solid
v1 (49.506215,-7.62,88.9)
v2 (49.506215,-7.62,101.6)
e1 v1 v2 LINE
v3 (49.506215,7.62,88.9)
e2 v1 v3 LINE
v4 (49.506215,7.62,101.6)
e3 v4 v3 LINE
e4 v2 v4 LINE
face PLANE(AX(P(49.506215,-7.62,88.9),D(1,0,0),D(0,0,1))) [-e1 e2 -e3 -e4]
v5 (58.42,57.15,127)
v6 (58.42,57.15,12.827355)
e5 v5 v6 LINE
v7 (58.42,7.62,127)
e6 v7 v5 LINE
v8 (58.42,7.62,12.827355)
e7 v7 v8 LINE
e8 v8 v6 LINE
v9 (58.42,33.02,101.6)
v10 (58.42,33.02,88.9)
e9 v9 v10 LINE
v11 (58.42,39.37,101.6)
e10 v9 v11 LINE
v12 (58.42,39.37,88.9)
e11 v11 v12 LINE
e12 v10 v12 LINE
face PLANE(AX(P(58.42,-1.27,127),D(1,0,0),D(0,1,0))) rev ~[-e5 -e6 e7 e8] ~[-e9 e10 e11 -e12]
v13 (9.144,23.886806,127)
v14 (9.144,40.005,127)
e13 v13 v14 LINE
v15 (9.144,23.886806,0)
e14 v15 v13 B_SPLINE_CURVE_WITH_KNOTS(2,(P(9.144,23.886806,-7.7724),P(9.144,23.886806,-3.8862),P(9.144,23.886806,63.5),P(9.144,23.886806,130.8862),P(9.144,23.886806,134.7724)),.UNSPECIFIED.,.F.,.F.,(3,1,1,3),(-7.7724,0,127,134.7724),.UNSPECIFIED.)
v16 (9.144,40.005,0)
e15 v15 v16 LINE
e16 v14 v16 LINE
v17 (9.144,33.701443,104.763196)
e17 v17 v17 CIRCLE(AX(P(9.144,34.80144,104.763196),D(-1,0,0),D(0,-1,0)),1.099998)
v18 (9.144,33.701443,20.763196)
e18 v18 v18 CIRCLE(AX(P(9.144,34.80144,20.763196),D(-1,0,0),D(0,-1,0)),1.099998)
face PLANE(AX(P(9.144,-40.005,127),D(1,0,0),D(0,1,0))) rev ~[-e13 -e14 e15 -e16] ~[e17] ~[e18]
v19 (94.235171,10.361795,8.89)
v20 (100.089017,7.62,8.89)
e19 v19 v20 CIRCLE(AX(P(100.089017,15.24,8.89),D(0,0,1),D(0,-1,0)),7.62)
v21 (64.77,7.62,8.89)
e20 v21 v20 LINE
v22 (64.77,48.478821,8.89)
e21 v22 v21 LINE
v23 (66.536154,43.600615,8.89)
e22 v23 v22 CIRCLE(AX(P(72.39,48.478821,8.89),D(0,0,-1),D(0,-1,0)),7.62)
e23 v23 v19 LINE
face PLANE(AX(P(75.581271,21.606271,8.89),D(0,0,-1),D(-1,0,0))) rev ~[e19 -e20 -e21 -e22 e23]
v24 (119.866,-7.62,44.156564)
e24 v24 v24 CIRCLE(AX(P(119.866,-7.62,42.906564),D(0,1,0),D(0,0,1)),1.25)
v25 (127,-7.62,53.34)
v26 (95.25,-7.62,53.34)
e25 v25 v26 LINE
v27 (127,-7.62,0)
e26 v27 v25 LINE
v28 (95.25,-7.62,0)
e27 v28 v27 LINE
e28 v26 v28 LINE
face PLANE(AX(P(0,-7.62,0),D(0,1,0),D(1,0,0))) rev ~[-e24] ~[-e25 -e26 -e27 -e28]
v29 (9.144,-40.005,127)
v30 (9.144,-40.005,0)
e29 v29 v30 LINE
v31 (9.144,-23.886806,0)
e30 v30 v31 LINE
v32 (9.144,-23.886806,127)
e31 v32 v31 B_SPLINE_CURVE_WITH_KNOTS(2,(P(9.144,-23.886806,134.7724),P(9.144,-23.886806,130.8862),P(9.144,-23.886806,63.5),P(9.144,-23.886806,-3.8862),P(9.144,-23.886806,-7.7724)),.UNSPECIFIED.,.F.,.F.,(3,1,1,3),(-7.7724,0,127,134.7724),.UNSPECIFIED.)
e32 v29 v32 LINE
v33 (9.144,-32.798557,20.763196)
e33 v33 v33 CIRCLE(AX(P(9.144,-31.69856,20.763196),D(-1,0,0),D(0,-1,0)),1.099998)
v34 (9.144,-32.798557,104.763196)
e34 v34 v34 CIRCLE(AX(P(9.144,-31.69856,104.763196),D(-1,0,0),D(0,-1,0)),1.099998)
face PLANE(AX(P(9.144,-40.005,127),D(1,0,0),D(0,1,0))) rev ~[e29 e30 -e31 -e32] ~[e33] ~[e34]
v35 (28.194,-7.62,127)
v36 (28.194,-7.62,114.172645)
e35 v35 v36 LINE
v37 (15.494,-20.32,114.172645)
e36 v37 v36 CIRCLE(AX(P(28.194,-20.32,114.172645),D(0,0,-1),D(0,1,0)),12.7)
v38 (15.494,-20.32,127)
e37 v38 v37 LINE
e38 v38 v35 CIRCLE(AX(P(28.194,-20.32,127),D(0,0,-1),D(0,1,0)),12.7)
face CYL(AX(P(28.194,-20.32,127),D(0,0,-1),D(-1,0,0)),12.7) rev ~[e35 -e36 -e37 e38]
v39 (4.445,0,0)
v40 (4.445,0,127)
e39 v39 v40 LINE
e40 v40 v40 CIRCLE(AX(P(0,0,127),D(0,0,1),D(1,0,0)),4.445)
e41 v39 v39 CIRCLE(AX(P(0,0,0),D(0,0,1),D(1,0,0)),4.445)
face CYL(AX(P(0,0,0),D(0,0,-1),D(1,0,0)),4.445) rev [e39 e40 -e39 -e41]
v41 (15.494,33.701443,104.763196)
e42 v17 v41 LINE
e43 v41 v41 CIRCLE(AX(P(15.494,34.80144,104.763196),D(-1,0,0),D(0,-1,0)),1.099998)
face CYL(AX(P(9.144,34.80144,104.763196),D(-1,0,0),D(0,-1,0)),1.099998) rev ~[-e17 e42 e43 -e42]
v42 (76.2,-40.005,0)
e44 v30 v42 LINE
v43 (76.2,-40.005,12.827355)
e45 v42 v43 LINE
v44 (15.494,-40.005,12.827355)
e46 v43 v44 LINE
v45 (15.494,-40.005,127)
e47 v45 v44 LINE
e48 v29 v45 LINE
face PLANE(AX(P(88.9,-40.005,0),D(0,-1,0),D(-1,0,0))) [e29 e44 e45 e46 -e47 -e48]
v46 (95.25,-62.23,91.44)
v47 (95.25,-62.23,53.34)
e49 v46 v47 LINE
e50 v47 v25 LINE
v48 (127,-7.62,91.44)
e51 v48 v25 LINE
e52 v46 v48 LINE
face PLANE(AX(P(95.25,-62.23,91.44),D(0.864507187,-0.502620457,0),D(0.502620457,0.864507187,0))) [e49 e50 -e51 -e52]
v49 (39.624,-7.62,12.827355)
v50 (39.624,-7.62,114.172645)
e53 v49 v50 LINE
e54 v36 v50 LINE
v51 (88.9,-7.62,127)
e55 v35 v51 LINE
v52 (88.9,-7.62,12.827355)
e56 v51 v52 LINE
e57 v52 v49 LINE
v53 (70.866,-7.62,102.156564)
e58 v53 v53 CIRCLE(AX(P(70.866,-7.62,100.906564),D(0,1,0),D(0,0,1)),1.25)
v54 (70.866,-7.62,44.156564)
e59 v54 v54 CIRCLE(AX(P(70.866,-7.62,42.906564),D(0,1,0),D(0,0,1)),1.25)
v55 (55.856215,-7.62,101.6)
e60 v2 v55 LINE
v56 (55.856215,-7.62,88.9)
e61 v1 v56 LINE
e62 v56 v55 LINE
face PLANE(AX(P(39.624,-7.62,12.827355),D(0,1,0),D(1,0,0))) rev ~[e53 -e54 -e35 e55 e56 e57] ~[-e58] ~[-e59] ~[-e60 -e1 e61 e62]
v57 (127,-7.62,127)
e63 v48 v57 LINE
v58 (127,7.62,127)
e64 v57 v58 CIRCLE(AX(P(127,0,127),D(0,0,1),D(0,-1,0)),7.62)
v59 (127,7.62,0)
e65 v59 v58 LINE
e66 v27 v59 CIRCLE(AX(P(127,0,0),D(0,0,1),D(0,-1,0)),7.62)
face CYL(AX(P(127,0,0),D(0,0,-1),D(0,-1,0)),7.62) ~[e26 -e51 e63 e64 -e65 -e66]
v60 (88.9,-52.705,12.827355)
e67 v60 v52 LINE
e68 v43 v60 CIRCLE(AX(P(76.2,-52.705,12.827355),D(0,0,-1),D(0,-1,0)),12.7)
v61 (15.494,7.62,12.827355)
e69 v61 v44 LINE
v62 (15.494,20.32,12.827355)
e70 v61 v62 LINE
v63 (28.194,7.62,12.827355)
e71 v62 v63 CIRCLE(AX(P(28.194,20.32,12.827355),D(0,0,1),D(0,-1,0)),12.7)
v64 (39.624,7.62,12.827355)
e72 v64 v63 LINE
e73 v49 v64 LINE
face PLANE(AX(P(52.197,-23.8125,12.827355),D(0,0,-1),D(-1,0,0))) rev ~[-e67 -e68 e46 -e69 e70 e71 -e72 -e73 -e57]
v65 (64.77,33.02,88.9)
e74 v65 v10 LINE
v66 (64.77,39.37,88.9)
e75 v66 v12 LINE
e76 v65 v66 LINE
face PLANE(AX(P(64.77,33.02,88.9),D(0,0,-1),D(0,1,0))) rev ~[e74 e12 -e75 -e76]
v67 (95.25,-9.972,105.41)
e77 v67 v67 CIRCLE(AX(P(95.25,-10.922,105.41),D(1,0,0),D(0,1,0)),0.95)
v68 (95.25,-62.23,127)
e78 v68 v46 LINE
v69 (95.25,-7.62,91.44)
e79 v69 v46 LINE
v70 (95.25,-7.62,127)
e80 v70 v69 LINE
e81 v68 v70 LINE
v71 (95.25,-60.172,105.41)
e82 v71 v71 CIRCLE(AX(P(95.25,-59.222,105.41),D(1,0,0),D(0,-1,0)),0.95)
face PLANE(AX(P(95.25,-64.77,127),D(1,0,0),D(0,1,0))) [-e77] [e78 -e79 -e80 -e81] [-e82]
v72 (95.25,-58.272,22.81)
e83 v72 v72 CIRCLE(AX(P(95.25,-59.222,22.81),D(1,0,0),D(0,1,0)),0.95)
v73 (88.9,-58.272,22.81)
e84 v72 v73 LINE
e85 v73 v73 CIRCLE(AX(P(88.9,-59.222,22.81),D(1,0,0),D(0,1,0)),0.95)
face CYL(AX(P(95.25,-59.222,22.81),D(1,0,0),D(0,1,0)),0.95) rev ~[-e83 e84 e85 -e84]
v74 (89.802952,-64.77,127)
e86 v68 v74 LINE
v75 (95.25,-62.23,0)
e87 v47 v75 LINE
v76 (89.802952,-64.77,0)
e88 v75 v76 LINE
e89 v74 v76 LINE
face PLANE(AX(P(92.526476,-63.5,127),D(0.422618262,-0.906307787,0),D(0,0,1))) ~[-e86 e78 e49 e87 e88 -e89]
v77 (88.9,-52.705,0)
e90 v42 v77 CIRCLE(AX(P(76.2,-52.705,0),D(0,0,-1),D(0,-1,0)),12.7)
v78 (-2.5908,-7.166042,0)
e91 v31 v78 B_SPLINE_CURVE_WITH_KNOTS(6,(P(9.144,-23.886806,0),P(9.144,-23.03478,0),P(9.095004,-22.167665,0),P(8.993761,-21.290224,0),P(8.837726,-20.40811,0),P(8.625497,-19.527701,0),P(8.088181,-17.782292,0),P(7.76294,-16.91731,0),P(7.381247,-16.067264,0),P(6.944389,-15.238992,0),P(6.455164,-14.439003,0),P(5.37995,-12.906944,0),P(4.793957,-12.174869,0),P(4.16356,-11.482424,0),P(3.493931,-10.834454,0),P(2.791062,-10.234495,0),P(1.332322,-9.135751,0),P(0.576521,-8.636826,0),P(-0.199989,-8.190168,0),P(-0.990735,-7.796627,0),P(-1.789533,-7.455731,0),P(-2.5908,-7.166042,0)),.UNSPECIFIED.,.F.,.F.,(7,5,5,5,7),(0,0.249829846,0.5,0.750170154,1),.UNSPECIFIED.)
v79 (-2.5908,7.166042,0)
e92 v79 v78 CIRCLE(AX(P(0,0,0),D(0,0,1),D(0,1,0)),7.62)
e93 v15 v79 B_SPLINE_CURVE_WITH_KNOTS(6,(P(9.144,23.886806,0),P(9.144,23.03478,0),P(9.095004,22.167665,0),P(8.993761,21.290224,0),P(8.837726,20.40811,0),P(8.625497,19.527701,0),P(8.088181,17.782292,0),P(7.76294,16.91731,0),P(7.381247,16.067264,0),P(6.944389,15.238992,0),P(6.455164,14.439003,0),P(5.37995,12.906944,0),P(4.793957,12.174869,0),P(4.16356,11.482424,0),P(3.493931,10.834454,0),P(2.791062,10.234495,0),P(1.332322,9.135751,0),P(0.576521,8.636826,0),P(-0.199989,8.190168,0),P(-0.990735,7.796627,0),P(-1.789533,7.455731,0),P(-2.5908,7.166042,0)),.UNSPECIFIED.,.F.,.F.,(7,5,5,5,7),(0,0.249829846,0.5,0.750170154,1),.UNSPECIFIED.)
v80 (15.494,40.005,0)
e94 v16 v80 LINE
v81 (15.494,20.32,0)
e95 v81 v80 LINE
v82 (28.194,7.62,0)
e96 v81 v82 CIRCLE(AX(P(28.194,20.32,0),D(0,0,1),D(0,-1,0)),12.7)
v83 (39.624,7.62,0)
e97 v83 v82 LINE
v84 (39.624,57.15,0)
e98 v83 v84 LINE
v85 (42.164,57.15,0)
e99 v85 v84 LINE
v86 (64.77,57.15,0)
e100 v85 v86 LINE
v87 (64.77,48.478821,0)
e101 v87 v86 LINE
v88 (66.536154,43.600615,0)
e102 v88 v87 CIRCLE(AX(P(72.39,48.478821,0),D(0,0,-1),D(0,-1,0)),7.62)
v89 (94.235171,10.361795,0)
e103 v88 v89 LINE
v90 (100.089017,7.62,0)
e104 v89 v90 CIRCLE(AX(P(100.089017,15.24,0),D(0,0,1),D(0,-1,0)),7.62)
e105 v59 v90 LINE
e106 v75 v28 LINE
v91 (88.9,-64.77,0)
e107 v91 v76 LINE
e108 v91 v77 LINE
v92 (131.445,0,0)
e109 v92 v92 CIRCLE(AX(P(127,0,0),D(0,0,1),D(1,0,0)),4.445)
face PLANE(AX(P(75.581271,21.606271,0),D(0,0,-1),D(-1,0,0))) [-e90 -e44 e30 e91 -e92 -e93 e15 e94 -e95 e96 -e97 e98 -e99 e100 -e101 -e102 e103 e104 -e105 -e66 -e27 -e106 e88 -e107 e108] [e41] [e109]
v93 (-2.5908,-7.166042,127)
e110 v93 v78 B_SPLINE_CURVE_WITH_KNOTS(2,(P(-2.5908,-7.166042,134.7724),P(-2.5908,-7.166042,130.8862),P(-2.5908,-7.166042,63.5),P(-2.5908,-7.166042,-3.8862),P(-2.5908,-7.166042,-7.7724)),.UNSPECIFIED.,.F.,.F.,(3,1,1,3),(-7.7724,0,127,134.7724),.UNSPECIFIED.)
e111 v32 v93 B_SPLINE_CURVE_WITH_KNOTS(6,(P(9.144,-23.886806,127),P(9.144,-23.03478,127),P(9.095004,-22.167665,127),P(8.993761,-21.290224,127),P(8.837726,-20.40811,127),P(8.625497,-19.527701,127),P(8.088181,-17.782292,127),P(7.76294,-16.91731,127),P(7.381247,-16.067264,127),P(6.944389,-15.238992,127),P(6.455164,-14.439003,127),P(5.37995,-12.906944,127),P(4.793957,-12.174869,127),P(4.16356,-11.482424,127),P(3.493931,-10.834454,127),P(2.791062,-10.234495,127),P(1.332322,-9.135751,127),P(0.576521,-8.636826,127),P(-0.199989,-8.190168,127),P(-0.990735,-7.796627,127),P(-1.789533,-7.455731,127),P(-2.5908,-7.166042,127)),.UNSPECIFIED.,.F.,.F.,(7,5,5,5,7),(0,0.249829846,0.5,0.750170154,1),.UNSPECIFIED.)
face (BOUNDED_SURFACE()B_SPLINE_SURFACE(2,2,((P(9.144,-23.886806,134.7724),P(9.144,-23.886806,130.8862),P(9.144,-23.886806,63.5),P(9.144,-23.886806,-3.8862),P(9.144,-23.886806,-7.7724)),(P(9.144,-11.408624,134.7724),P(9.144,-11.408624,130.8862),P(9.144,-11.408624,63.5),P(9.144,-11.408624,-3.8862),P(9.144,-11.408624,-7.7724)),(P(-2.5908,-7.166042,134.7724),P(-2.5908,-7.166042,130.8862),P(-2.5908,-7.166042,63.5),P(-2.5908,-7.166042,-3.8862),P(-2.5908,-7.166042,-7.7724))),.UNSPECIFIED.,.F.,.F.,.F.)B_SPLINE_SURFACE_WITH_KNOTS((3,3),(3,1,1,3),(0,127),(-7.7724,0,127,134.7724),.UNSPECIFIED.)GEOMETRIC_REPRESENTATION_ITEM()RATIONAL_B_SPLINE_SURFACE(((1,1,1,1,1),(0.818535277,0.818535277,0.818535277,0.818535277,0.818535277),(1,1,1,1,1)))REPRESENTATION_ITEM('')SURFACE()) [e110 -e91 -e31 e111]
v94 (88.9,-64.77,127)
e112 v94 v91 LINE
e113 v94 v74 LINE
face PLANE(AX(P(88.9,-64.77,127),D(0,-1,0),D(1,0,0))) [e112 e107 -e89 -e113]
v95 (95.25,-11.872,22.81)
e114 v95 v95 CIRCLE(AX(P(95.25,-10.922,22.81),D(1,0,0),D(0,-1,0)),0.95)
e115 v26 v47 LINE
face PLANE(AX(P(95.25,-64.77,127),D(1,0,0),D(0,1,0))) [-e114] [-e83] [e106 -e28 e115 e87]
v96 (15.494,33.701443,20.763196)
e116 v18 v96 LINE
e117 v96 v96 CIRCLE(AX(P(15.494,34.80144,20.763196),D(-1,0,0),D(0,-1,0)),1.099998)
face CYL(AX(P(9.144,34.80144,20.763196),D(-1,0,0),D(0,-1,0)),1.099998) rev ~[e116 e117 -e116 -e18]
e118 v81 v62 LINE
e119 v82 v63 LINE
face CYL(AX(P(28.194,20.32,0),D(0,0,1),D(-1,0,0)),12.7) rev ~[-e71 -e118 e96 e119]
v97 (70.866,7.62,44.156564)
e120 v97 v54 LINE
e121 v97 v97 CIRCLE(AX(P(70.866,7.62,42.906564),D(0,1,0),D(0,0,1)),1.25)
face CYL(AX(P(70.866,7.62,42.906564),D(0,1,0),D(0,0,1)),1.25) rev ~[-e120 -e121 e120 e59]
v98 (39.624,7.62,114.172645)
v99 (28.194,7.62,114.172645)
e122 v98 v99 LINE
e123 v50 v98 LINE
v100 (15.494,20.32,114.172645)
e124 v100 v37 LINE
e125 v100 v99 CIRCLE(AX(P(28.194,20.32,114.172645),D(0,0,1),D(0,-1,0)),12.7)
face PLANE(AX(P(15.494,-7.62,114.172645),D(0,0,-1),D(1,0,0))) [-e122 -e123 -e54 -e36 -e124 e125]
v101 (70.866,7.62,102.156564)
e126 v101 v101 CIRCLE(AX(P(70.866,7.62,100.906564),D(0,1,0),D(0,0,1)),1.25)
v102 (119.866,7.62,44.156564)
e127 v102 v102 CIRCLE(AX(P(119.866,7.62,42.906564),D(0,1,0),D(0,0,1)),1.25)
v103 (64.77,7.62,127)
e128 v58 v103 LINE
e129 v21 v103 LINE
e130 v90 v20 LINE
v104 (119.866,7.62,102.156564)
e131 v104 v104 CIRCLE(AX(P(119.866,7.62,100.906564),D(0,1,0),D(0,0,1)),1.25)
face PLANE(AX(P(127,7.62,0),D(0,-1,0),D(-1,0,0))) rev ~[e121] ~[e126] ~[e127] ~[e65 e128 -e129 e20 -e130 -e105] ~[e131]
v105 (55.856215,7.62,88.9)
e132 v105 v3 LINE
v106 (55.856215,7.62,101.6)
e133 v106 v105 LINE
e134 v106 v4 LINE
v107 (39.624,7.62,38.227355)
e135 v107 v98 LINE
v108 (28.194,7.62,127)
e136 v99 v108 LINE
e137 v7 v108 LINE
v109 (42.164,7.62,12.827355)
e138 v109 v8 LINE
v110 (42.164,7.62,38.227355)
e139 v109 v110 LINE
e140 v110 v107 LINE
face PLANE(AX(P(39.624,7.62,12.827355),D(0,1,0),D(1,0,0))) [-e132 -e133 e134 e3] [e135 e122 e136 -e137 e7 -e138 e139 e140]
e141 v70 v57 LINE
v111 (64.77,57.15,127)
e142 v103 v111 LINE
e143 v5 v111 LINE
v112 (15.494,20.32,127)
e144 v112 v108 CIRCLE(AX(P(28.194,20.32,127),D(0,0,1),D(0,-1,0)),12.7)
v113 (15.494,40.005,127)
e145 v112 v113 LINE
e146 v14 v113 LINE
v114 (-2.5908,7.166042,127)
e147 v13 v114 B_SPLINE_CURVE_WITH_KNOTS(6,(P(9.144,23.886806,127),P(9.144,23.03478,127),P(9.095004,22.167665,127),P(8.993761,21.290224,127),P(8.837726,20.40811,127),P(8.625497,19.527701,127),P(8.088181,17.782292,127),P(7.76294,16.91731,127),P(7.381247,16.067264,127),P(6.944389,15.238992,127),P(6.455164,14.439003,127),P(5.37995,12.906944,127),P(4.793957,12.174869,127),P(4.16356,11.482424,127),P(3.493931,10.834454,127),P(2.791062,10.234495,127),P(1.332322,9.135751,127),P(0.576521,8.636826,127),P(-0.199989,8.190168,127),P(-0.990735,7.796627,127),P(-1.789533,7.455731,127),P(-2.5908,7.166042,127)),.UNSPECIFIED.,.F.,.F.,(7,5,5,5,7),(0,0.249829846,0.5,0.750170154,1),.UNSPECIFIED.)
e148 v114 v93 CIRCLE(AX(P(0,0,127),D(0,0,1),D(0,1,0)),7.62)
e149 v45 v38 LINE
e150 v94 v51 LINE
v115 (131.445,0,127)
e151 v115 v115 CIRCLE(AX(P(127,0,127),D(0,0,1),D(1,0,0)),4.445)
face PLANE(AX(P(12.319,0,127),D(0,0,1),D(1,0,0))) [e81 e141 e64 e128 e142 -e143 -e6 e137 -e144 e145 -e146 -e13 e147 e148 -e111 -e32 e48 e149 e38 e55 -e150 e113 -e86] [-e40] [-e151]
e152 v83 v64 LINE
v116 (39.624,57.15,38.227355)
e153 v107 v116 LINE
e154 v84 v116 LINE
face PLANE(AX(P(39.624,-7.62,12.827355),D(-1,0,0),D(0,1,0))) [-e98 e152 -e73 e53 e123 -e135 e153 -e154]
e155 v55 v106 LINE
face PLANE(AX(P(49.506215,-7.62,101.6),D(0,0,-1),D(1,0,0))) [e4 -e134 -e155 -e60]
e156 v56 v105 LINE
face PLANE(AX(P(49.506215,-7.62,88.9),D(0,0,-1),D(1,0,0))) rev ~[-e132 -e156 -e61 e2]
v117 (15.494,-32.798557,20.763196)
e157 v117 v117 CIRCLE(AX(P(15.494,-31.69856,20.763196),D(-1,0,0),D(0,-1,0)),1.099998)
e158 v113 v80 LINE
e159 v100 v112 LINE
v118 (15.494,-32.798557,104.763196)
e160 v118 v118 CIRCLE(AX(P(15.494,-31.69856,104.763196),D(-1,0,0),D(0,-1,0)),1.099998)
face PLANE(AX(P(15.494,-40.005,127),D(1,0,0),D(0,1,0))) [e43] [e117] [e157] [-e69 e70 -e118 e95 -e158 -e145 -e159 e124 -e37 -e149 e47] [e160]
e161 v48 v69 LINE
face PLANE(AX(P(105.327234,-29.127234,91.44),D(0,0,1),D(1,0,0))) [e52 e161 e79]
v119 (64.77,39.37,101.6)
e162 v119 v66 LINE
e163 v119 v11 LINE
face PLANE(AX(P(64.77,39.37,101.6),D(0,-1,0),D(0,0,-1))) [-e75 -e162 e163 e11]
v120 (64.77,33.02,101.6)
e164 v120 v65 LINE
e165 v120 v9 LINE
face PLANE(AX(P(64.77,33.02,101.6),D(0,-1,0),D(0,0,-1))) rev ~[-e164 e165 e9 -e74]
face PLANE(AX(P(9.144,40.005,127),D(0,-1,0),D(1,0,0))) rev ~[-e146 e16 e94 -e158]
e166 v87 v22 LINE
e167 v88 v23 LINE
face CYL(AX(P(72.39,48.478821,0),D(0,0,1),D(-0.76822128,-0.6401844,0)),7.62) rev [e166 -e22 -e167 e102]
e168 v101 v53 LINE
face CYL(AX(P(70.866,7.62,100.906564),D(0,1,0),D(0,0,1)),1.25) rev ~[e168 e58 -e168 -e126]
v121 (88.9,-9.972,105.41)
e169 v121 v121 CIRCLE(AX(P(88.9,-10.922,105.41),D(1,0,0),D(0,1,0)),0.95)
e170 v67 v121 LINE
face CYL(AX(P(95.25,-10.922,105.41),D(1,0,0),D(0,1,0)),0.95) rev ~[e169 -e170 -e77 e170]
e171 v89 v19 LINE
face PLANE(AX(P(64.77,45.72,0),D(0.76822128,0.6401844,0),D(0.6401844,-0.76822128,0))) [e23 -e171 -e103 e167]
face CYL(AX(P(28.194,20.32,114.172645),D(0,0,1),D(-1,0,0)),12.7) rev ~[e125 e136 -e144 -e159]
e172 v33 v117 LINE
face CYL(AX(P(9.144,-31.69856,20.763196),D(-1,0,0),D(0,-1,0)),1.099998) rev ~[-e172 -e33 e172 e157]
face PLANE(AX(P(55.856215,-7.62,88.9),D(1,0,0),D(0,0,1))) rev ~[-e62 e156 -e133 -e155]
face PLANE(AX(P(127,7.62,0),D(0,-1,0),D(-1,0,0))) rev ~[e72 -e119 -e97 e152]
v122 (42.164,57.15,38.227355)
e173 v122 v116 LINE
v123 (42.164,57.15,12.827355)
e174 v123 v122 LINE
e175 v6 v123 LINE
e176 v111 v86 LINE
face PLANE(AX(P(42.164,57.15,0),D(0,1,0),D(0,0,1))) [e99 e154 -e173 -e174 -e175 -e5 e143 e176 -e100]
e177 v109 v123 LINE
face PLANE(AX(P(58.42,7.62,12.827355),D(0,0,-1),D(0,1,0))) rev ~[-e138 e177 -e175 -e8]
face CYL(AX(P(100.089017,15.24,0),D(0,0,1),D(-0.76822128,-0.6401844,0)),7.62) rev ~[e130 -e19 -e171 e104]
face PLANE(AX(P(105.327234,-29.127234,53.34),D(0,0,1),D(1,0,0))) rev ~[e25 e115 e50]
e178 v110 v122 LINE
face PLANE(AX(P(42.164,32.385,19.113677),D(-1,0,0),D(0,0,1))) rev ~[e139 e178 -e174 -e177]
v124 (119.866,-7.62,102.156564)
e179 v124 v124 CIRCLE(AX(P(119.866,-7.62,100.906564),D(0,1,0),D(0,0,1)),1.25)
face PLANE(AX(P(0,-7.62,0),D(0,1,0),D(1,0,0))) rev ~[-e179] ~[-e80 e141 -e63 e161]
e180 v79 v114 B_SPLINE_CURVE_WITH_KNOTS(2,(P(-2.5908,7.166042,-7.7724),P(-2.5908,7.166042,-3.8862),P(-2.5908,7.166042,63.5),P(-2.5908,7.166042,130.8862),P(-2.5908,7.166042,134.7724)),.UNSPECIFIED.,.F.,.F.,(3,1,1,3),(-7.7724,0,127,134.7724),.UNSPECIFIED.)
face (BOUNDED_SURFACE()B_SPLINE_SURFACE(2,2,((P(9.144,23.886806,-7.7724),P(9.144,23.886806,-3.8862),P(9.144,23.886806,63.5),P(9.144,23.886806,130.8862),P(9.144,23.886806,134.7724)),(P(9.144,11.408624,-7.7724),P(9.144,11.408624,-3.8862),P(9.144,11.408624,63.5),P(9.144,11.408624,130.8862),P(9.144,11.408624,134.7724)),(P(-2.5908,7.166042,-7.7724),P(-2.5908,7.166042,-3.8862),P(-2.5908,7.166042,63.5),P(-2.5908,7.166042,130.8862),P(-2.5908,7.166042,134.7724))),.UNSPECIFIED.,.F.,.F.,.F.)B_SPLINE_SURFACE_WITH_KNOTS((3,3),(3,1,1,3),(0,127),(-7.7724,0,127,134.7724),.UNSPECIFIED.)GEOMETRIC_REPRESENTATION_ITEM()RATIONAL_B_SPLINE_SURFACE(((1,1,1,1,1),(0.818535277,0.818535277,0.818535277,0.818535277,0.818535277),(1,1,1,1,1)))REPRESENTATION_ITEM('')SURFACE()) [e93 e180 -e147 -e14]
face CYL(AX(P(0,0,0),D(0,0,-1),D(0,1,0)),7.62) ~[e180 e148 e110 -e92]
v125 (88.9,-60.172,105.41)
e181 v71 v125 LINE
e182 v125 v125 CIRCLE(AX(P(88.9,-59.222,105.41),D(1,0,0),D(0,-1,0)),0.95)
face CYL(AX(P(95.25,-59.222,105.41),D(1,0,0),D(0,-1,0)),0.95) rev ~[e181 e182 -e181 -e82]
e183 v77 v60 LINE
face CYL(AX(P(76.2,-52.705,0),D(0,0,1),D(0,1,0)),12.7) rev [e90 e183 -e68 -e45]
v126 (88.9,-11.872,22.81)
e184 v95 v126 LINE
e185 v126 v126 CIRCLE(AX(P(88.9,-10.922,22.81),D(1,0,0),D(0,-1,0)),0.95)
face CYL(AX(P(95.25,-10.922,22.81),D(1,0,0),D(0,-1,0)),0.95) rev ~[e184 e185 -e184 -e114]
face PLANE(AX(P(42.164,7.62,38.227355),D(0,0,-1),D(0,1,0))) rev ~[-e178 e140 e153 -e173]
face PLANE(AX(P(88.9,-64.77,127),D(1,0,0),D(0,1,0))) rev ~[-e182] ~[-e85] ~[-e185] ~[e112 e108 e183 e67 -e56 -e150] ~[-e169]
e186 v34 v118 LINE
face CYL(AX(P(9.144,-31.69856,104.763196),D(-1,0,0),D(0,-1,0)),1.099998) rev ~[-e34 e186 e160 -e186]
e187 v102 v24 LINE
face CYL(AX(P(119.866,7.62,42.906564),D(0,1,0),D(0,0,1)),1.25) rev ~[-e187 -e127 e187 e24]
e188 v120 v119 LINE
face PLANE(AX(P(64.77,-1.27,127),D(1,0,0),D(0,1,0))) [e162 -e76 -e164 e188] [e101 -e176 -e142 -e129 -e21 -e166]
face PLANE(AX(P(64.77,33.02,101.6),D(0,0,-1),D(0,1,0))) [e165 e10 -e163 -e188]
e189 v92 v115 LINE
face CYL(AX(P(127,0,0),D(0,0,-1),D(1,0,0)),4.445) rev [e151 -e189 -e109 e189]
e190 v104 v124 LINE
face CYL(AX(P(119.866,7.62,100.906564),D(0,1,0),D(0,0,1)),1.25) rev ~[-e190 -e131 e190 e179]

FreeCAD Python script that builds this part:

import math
import FreeCAD as App
import Part
import Sketcher

V = App.Vector
Q = App.Units.Quantity


def edges_at(feature, points):
    """Names of the edges that pass closest to the given points."""
    edges = feature.Shape.Edges
    near = lambda p: min(range(len(edges)), key=lambda i: edges[i].distToShape(Part.Vertex(*p))[0])
    return sorted({f"Edge{near(p) + 1}" for p in points})


def add_polygon(sketch, points):
    """Adds a closed chain of lines whose ends are joined by coincident constraints."""
    first, n = sketch.GeometryCount, len(points)
    for a, b in zip(points, points[1:] + points[:1]):
        sketch.addGeometry(Part.LineSegment(App.Vector(*a, 0), App.Vector(*b, 0)), False)
    for i in range(n):
        sketch.addConstraint(Sketcher.Constraint("Coincident", first + i, 2, first + (i + 1) % n, 1))

doc = App.newDocument("Part")
body = doc.addObject("PartDesign::Body", "Body")

# Sketch on XY plane
sketch1 = body.newObject("Sketcher::SketchObject", "Sketch")
sketch1.AttachmentSupport = (doc.getObject("XY_Plane"), [""])
sketch1.MapMode = "FlatFace"
sketch1.addGeometry(Part.LineSegment(V(0, -7.6, 0), V(127, -7.6, 0)), False)
sketch1.addGeometry(Part.ArcOfCircle(Part.Circle(V(127, 0, 0), V(0, 0, 1), 7.6), math.radians(-90), math.radians(90)), False)
sketch1.addGeometry(Part.LineSegment(V(127, 7.6, 0), V(0, 7.6, 0)), False)
sketch1.addGeometry(Part.ArcOfCircle(Part.Circle(V(0, 0, 0), V(0, 0, 1), 7.6), math.radians(90), math.radians(270)), False)
sketch1.addGeometry(Part.Circle(V(0, 0, 0), V(0, 0, 1), 4.4), False)
sketch1.addGeometry(Part.Circle(V(127, 0, 0), V(0, 0, 1), 4.4), False)
sketch1.addConstraint(Sketcher.Constraint("Tangent", 0, 2, 1, 1))
sketch1.addConstraint(Sketcher.Constraint("Tangent", 1, 2, 2, 1))
sketch1.addConstraint(Sketcher.Constraint("Tangent", 2, 2, 3, 1))
sketch1.addConstraint(Sketcher.Constraint("Tangent", 3, 2, 0, 1))
sketch1.addConstraint(Sketcher.Constraint("Horizontal", 0))
sketch1.addConstraint(Sketcher.Constraint("Horizontal", 2))
sketch1.addConstraint(Sketcher.Constraint("Coincident", 3, 3, -1, 1))
sketch1.addConstraint(Sketcher.Constraint("Coincident", 4, 3, -1, 1))
sketch1.addConstraint(Sketcher.Constraint("Coincident", 5, 3, 1, 3))
sketch1.addConstraint(Sketcher.Constraint("Equal", 4, 5))
sketch1.addConstraint(Sketcher.Constraint("Radius", 1, Q("0.3 in")))
sketch1.addConstraint(Sketcher.Constraint("Diameter", 4, Q("0.35 in")))
sketch1.addConstraint(Sketcher.Constraint("DistanceX", 0, 1, 0, 2, Q("5 in")))
pad1 = body.newObject("PartDesign::Pad", "Pad")
pad1.Profile = sketch1
pad1.Length = Q("5 in")

# Sketch on XY plane
sketch2 = body.newObject("Sketcher::SketchObject", "Sketch001")
sketch2.AttachmentSupport = (doc.getObject("XY_Plane"), [""])
sketch2.MapMode = "FlatFace"
sketch2.AttachmentOffset = App.Placement(V(0, 0, 5 * 25.4), App.Rotation())
add_polygon(sketch2, [(89, -8), (89, -65), (95, -65), (95, -8)])  # lines 0-3
add_polygon(sketch2, [(9, 40), (9, -40), (15, -40), (15, 40)])  # lines 4-7
add_polygon(sketch2, [(58, 65), (58, -1), (65, -1), (65, 65)])  # lines 8-11
sketch2.addConstraint(Sketcher.Constraint("Vertical", 0))
sketch2.addConstraint(Sketcher.Constraint("Horizontal", 1))
sketch2.addConstraint(Sketcher.Constraint("Vertical", 2))
sketch2.addConstraint(Sketcher.Constraint("Horizontal", 3))
sketch2.addConstraint(Sketcher.Constraint("Vertical", 4))
sketch2.addConstraint(Sketcher.Constraint("Horizontal", 5))
sketch2.addConstraint(Sketcher.Constraint("Vertical", 6))
sketch2.addConstraint(Sketcher.Constraint("Horizontal", 7))
sketch2.addConstraint(Sketcher.Constraint("Vertical", 8))
sketch2.addConstraint(Sketcher.Constraint("Horizontal", 9))
sketch2.addConstraint(Sketcher.Constraint("Vertical", 10))
sketch2.addConstraint(Sketcher.Constraint("Horizontal", 11))
sketch2.addConstraint(Sketcher.Constraint("Equal", 3, 5))
sketch2.addConstraint(Sketcher.Constraint("Equal", 7, 9))
sketch2.addConstraint(Sketcher.Constraint("DistanceY", 8, 2, 8, 1, Q("2.6 in")))
sketch2.addConstraint(Sketcher.Constraint("DistanceX", 1, 1, 1, 2, Q("0.25 in")))
sketch2.addConstraint(Sketcher.Constraint("DistanceY", 0, 2, 0, 1, Q("2.25 in")))
sketch2.addConstraint(Sketcher.Constraint("DistanceY", 4, 2, 4, 1, Q("3.15 in")))
sketch2.addConstraint(Sketcher.Constraint("DistanceX", -1, 1, 0, 2, Q("3.5 in")))
sketch2.addConstraint(Sketcher.Constraint("DistanceY", 2, 2, -1, 1, Q("0.3 in")))
sketch2.addConstraint(Sketcher.Constraint("DistanceX", -1, 1, 8, 2, Q("2.3 in")))
sketch2.addConstraint(Sketcher.Constraint("DistanceX", -1, 1, 4, 2, Q("0.36 in")))
sketch2.addConstraint(Sketcher.Constraint("DistanceY", 8, 2, -1, 1, Q("0.05 in")))
sketch2.addConstraint(Sketcher.Constraint("DistanceY", 4, 2, -1, 1, Q("1.575 in")))
pad2 = body.newObject("PartDesign::Pad", "Pad001")
pad2.Profile = sketch2
pad2.Length = Q("5 in")
pad2.Reversed = True

# Sketch on YZ plane
sketch3 = body.newObject("Sketcher::SketchObject", "Sketch002")
sketch3.AttachmentSupport = (doc.getObject("YZ_Plane"), [""])
sketch3.MapMode = "FlatFace"
sketch3.AttachmentOffset = App.Placement(V(0, 0, 0.36 * 25.4), App.Rotation())
sketch3.addGeometry(Part.Circle(V(34.8, 104.8, 0), V(0, 0, 1), 1.1), False)
sketch3.addConstraint(Sketcher.Constraint("Diameter", 0, 2.199996))
sketch3.addConstraint(Sketcher.Constraint("DistanceX", -1, 1, 0, 3, 34.80144))
sketch3.addConstraint(Sketcher.Constraint("DistanceY", -1, 1, 0, 3, 104.763196))
pocket1 = body.newObject("PartDesign::Pocket", "Pocket")
pocket1.Profile = sketch3
pocket1.Type = "UpToFirst"
pocket1.Reversed = True

# Sketch on YZ plane
sketch4 = body.newObject("Sketcher::SketchObject", "Sketch003")
sketch4.AttachmentSupport = (doc.getObject("YZ_Plane"), [""])
sketch4.MapMode = "FlatFace"
sketch4.AttachmentOffset = App.Placement(V(0, 0, 0.36 * 25.4), App.Rotation())
sketch4.addGeometry(Part.Circle(V(-31.7, 104.8, 0), V(0, 0, 1), 1.1), False)
sketch4.addConstraint(Sketcher.Constraint("Diameter", 0, 2.199996))
sketch4.addConstraint(Sketcher.Constraint("DistanceX", 0, 3, -1, 1, 31.69856))
sketch4.addConstraint(Sketcher.Constraint("DistanceY", -1, 1, 0, 3, 104.763196))
pocket2 = body.newObject("PartDesign::Pocket", "Pocket001")
pocket2.Profile = sketch4
pocket2.Type = "UpToFirst"
pocket2.Reversed = True

# Sketch on YZ plane
sketch5 = body.newObject("Sketcher::SketchObject", "Sketch004")
sketch5.AttachmentSupport = (doc.getObject("YZ_Plane"), [""])
sketch5.MapMode = "FlatFace"
sketch5.AttachmentOffset = App.Placement(V(0, 0, 0.36 * 25.4), App.Rotation())
sketch5.addGeometry(Part.Circle(V(-31.7, 20.8, 0), V(0, 0, 1), 1.1), False)
sketch5.addConstraint(Sketcher.Constraint("Diameter", 0, 2.199996))
sketch5.addConstraint(Sketcher.Constraint("DistanceX", 0, 3, -1, 1, 31.69856))
sketch5.addConstraint(Sketcher.Constraint("DistanceY", -1, 1, 0, 3, 20.763196))
pocket3 = body.newObject("PartDesign::Pocket", "Pocket002")
pocket3.Profile = sketch5
pocket3.Type = "UpToFirst"
pocket3.Reversed = True

# Sketch on YZ plane
sketch6 = body.newObject("Sketcher::SketchObject", "Sketch005")
sketch6.AttachmentSupport = (doc.getObject("YZ_Plane"), [""])
sketch6.MapMode = "FlatFace"
sketch6.AttachmentOffset = App.Placement(V(0, 0, 0.36 * 25.4), App.Rotation())
sketch6.addGeometry(Part.Circle(V(34.8, 20.8, 0), V(0, 0, 1), 1.1), False)
sketch6.addConstraint(Sketcher.Constraint("Diameter", 0, 2.199996))
sketch6.addConstraint(Sketcher.Constraint("DistanceX", -1, 1, 0, 3, 34.80144))
sketch6.addConstraint(Sketcher.Constraint("DistanceY", -1, 1, 0, 3, 20.763196))
pocket4 = body.newObject("PartDesign::Pocket", "Pocket003")
pocket4.Profile = sketch6
pocket4.Type = "UpToFirst"
pocket4.Reversed = True

# Sketch on XZ plane
sketch7 = body.newObject("Sketcher::SketchObject", "Sketch006")
sketch7.AttachmentSupport = (doc.getObject("XZ_Plane"), [""])
sketch7.MapMode = "FlatFace"
sketch7.AttachmentOffset = App.Placement(V(0, 0, 0.3 * 25.4), App.Rotation())
add_polygon(sketch7, [(15, 114), (15, 13), (58, 13), (58, 114)])  # lines 0-3
sketch7.addConstraint(Sketcher.Constraint("Vertical", 0))
sketch7.addConstraint(Sketcher.Constraint("Horizontal", 1))
sketch7.addConstraint(Sketcher.Constraint("Vertical", 2))
sketch7.addConstraint(Sketcher.Constraint("Horizontal", 3))
sketch7.addConstraint(Sketcher.Constraint("DistanceX", 1, 1, 1, 2, Q("1.69 in")))
sketch7.addConstraint(Sketcher.Constraint("DistanceX", -1, 1, 1, 2, Q("2.3 in")))
sketch7.addConstraint(Sketcher.Constraint("DistanceY", 0, 2, 0, 1, 101.34529))
sketch7.addConstraint(Sketcher.Constraint("DistanceY", -1, 1, 0, 2, 12.827355))
pocket5 = body.newObject("PartDesign::Pocket", "Pocket004")
pocket5.Profile = sketch7
pocket5.Type = "UpToFirst"
doc.recompute()

fillet = body.newObject("PartDesign::Fillet", "Fillet")
fillet.Base = (pocket5, edges_at(pocket5, [(9.144, -7.62, 63.5), (9.144, 7.62, 63.5)]))
fillet.Radius = Q("0.7 in")

# Sketch on XZ plane
sketch8 = body.newObject("Sketcher::SketchObject", "Sketch007")
sketch8.AttachmentSupport = (doc.getObject("XZ_Plane"), [""])
sketch8.MapMode = "FlatFace"
sketch8.AttachmentOffset = App.Placement(V(0, 0, -0.3 * 25.4), App.Rotation())
sketch8.addGeometry(Part.Circle(V(119.9, 42.9, 0), V(0, 0, 1), 1.2), False)
sketch8.addConstraint(Sketcher.Constraint("Diameter", 0, 2.5))
sketch8.addConstraint(Sketcher.Constraint("DistanceX", -1, 1, 0, 3, 119.866))
sketch8.addConstraint(Sketcher.Constraint("DistanceY", -1, 1, 0, 3, 42.906564))
pocket6 = body.newObject("PartDesign::Pocket", "Pocket005")
pocket6.Profile = sketch8
pocket6.Type = "UpToFirst"
pocket6.Reversed = True

# Sketch on XZ plane
sketch9 = body.newObject("Sketcher::SketchObject", "Sketch008")
sketch9.AttachmentSupport = (doc.getObject("XZ_Plane"), [""])
sketch9.MapMode = "FlatFace"
sketch9.AttachmentOffset = App.Placement(V(0, 0, -0.3 * 25.4), App.Rotation())
sketch9.addGeometry(Part.Circle(V(70.9, 42.9, 0), V(0, 0, 1), 1.2), False)
sketch9.addConstraint(Sketcher.Constraint("Diameter", 0, 2.5))
sketch9.addConstraint(Sketcher.Constraint("DistanceX", -1, 1, 0, 3, Q("2.79 in")))
sketch9.addConstraint(Sketcher.Constraint("DistanceY", -1, 1, 0, 3, 42.906564))
pocket7 = body.newObject("PartDesign::Pocket", "Pocket006")
pocket7.Profile = sketch9
pocket7.Type = "UpToFirst"
pocket7.Reversed = True

# Sketch on XZ plane
sketch10 = body.newObject("Sketcher::SketchObject", "Sketch009")
sketch10.AttachmentSupport = (doc.getObject("XZ_Plane"), [""])
sketch10.MapMode = "FlatFace"
sketch10.AttachmentOffset = App.Placement(V(0, 0, -0.3 * 25.4), App.Rotation())
sketch10.addGeometry(Part.Circle(V(70.9, 100.9, 0), V(0, 0, 1), 1.2), False)
sketch10.addConstraint(Sketcher.Constraint("Diameter", 0, 2.5))
sketch10.addConstraint(Sketcher.Constraint("DistanceX", -1, 1, 0, 3, Q("2.79 in")))
sketch10.addConstraint(Sketcher.Constraint("DistanceY", -1, 1, 0, 3, 100.906564))
pocket8 = body.newObject("PartDesign::Pocket", "Pocket007")
pocket8.Profile = sketch10
pocket8.Type = "UpToFirst"
pocket8.Reversed = True

# Sketch on XZ plane
sketch11 = body.newObject("Sketcher::SketchObject", "Sketch010")
sketch11.AttachmentSupport = (doc.getObject("XZ_Plane"), [""])
sketch11.MapMode = "FlatFace"
sketch11.AttachmentOffset = App.Placement(V(0, 0, -0.3 * 25.4), App.Rotation())
sketch11.addGeometry(Part.Circle(V(119.9, 100.9, 0), V(0, 0, 1), 1.2), False)
sketch11.addConstraint(Sketcher.Constraint("Diameter", 0, 2.5))
sketch11.addConstraint(Sketcher.Constraint("DistanceX", -1, 1, 0, 3, 119.866))
sketch11.addConstraint(Sketcher.Constraint("DistanceY", -1, 1, 0, 3, 100.906564))
pocket9 = body.newObject("PartDesign::Pocket", "Pocket008")
pocket9.Profile = sketch11
pocket9.Type = "UpToFirst"
pocket9.Reversed = True

# Sketch on XZ plane
sketch12 = body.newObject("Sketcher::SketchObject", "Sketch011")
sketch12.AttachmentSupport = (doc.getObject("XZ_Plane"), [""])
sketch12.MapMode = "FlatFace"
sketch12.AttachmentOffset = App.Placement(V(0, 0, -2.55 * 25.4), App.Rotation())
add_polygon(sketch12, [(58, 0), (58, 127), (65, 127), (65, 0)])  # lines 0-3
sketch12.addConstraint(Sketcher.Constraint("Vertical", 0))
sketch12.addConstraint(Sketcher.Constraint("Horizontal", 1))
sketch12.addConstraint(Sketcher.Constraint("Vertical", 2))
sketch12.addConstraint(Sketcher.Constraint("Horizontal", 3))
sketch12.addConstraint(Sketcher.Constraint("PointOnObject", 2, 2, -1))
sketch12.addConstraint(Sketcher.Constraint("DistanceY", 0, 1, 0, 2, Q("5 in")))
sketch12.addConstraint(Sketcher.Constraint("DistanceX", 1, 1, 1, 2, Q("0.25 in")))
sketch12.addConstraint(Sketcher.Constraint("DistanceX", -1, 1, 0, 2, Q("2.3 in")))
pocket10 = body.newObject("PartDesign::Pocket", "Pocket009")
pocket10.Profile = sketch12
pocket10.Length = Q("0.3 in")
pocket10.Reversed = True

# Sketch on YZ plane
sketch13 = body.newObject("Sketcher::SketchObject", "Sketch012")
sketch13.AttachmentSupport = (doc.getObject("YZ_Plane"), [""])
sketch13.MapMode = "FlatFace"
sketch13.AttachmentOffset = App.Placement(V(0, 0, 2.3 * 25.4), App.Rotation())
add_polygon(sketch13, [(57, 0), (8, 0), (8, 13), (57, 13)])  # lines 0-3
sketch13.addConstraint(Sketcher.Constraint("Horizontal", 0))
sketch13.addConstraint(Sketcher.Constraint("Vertical", 1))
sketch13.addConstraint(Sketcher.Constraint("Horizontal", 2))
sketch13.addConstraint(Sketcher.Constraint("Vertical", 3))
sketch13.addConstraint(Sketcher.Constraint("PointOnObject", 0, 2, -1))
sketch13.addConstraint(Sketcher.Constraint("DistanceX", 0, 2, 0, 1, Q("1.95 in")))
sketch13.addConstraint(Sketcher.Constraint("DistanceX", -1, 1, 0, 2, Q("0.3 in")))
sketch13.addConstraint(Sketcher.Constraint("DistanceY", 1, 1, 1, 2, 12.827355))
pad3 = body.newObject("PartDesign::Pad", "Pad002")
pad3.Profile = sketch13
pad3.Length = Q("0.64 in")
pad3.Reversed = True

# Sketch on YZ plane
sketch14 = body.newObject("Sketcher::SketchObject", "Sketch013")
sketch14.AttachmentSupport = (doc.getObject("YZ_Plane"), [""])
sketch14.MapMode = "FlatFace"
sketch14.AttachmentOffset = App.Placement(V(0, 0, 1.66 * 25.4), App.Rotation())
add_polygon(sketch14, [(57, 0), (8, 0), (8, 38), (57, 38)])  # lines 0-3
sketch14.addConstraint(Sketcher.Constraint("Horizontal", 0))
sketch14.addConstraint(Sketcher.Constraint("Vertical", 1))
sketch14.addConstraint(Sketcher.Constraint("Horizontal", 2))
sketch14.addConstraint(Sketcher.Constraint("Vertical", 3))
sketch14.addConstraint(Sketcher.Constraint("PointOnObject", 0, 2, -1))
sketch14.addConstraint(Sketcher.Constraint("DistanceX", 0, 2, 0, 1, Q("1.95 in")))
sketch14.addConstraint(Sketcher.Constraint("DistanceX", -1, 1, 0, 2, Q("0.3 in")))
sketch14.addConstraint(Sketcher.Constraint("DistanceY", 1, 1, 1, 2, 38.227355))
pad4 = body.newObject("PartDesign::Pad", "Pad003")
pad4.Profile = sketch14
pad4.Length = Q("0.1 in")
pad4.Reversed = True

# Sketch on XY plane
sketch15 = body.newObject("Sketcher::SketchObject", "Sketch014")
sketch15.AttachmentSupport = (doc.getObject("XY_Plane"), [""])
sketch15.MapMode = "FlatFace"
sketch15.AttachmentOffset = App.Placement(V(0, 0, 12.827355), App.Rotation())
add_polygon(sketch15, [(40, 8), (40, -8), (61, -8), (61, 8)])  # lines 0-3
sketch15.addConstraint(Sketcher.Constraint("Vertical", 0))
sketch15.addConstraint(Sketcher.Constraint("Horizontal", 1))
sketch15.addConstraint(Sketcher.Constraint("Vertical", 2))
sketch15.addConstraint(Sketcher.Constraint("Horizontal", 3))
sketch15.addConstraint(Sketcher.Constraint("DistanceY", 0, 2, 0, 1, Q("0.6 in")))
sketch15.addConstraint(Sketcher.Constraint("DistanceY", 0, 2, -1, 1, Q("0.3 in")))
sketch15.addConstraint(Sketcher.Constraint("DistanceX", -1, 1, 0, 2, Q("1.56 in")))
sketch15.addConstraint(Sketcher.Constraint("DistanceX", 1, 1, 1, 2, 21.632068))
pad5 = body.newObject("PartDesign::Pad", "Pad004")
pad5.Profile = sketch15
pad5.Length = 101.34529
doc.recompute()

fillet2 = body.newObject("PartDesign::Fillet", "Fillet001")
fillet2.Base = (pad5, edges_at(pad5, [(15.494, 7.62, 6.414), (15.494, -7.62, 120.586), (15.494, 7.62, 120.586)]))
fillet2.Radius = Q("0.5 in")

# Sketch on YZ plane
sketch16 = body.newObject("Sketcher::SketchObject", "Sketch015")
sketch16.AttachmentSupport = (doc.getObject("YZ_Plane"), [""])
sketch16.MapMode = "FlatFace"
sketch16.AttachmentOffset = App.Placement(V(0, 0, 3.75 * 25.4), App.Rotation())
sketch16.addGeometry(Part.Circle(V(-10.9, 105.4, 0), V(0, 0, 1), 0.9), False)
sketch16.addGeometry(Part.Circle(V(-10.9, 22.8, 0), V(0, 0, 1), 0.9), False)
sketch16.addGeometry(Part.Circle(V(-59.2, 22.8, 0), V(0, 0, 1), 0.9), False)
sketch16.addGeometry(Part.Circle(V(-59.2, 105.4, 0), V(0, 0, 1), 0.9), False)
sketch16.addConstraint(Sketcher.Constraint("Equal", 0, 1))
sketch16.addConstraint(Sketcher.Constraint("Equal", 1, 2))
sketch16.addConstraint(Sketcher.Constraint("Equal", 2, 3))
sketch16.addConstraint(Sketcher.Constraint("Horizontal", 1, 3, 2, 3))
sketch16.addConstraint(Sketcher.Constraint("Horizontal", 0, 3, 3, 3))
sketch16.addConstraint(Sketcher.Constraint("Vertical", 0, 3, 1, 3))
sketch16.addConstraint(Sketcher.Constraint("Vertical", 2, 3, 3, 3))
sketch16.addConstraint(Sketcher.Constraint("Diameter", 0, 1.9))
sketch16.addConstraint(Sketcher.Constraint("DistanceX", 0, 3, -1, 1, Q("0.43 in")))
sketch16.addConstraint(Sketcher.Constraint("DistanceY", -1, 1, 0, 3, Q("4.15 in")))
sketch16.addConstraint(Sketcher.Constraint("DistanceY", -1, 1, 1, 3, 22.81))
sketch16.addConstraint(Sketcher.Constraint("DistanceX", 2, 3, -1, 1, 59.222))
pocket11 = body.newObject("PartDesign::Pocket", "Pocket010")
pocket11.Profile = sketch16
pocket11.Length = Q("1 in")
doc.recompute()

chamfer = body.newObject("PartDesign::Chamfer", "Chamfer")
chamfer.Base = (pocket11, edges_at(pocket11, [(95.25, -64.77, 63.5)]))
chamfer.ChamferType = "Two distances"
chamfer.Size = Q("0.1 in")
chamfer.Size2 = 5.447048

# Sketch on XY plane
sketch17 = body.newObject("Sketcher::SketchObject", "Sketch016")
sketch17.AttachmentSupport = (doc.getObject("XY_Plane"), [""])
sketch17.MapMode = "FlatFace"
sketch17.AttachmentOffset = App.Placement(V(0, 0, 3.6 * 25.4), App.Rotation())
add_polygon(sketch17, [(127, -8), (95, -8), (95, -62)])  # lines 0-2
sketch17.addConstraint(Sketcher.Constraint("Horizontal", 0))
sketch17.addConstraint(Sketcher.Constraint("Vertical", 1))
sketch17.addConstraint(Sketcher.Constraint("DistanceX", -1, 1, 2, 2, Q("5 in")))
sketch17.addConstraint(Sketcher.Constraint("DistanceX", 0, 2, 0, 1, Q("1.25 in")))
sketch17.addConstraint(Sketcher.Constraint("DistanceY", 1, 2, 1, 1, Q("2.15 in")))
sketch17.addConstraint(Sketcher.Constraint("DistanceY", 0, 2, -1, 1, Q("0.3 in")))
pad6 = body.newObject("PartDesign::Pad", "Pad005")
pad6.Profile = sketch17
pad6.Length = Q("1.5 in")
pad6.Reversed = True

# Sketch on XY plane
sketch18 = body.newObject("Sketcher::SketchObject", "Sketch017")
sketch18.AttachmentSupport = (doc.getObject("XY_Plane"), [""])
sketch18.MapMode = "FlatFace"
add_polygon(sketch18, [(89, -8), (89, -40), (15, -40), (15, -8)])  # lines 0-3
sketch18.addConstraint(Sketcher.Constraint("Vertical", 0))
sketch18.addConstraint(Sketcher.Constraint("Horizontal", 1))
sketch18.addConstraint(Sketcher.Constraint("Vertical", 2))
sketch18.addConstraint(Sketcher.Constraint("Horizontal", 3))
sketch18.addConstraint(Sketcher.Constraint("DistanceX", 1, 2, 1, 1, Q("2.89 in")))
sketch18.addConstraint(Sketcher.Constraint("DistanceX", -1, 1, 0, 2, Q("3.5 in")))
sketch18.addConstraint(Sketcher.Constraint("DistanceY", 2, 2, -1, 1, Q("0.3 in")))
sketch18.addConstraint(Sketcher.Constraint("DistanceY", 0, 2, 0, 1, Q("1.275 in")))
pad7 = body.newObject("PartDesign::Pad", "Pad006")
pad7.Profile = sketch18
pad7.Length = 12.827355
doc.recompute()

fillet3 = body.newObject("PartDesign::Fillet", "Fillet002")
fillet3.Base = (pad7, edges_at(pad7, [(88.9, -40.005, 6.414)]))
fillet3.Radius = Q("0.5 in")

# Sketch on XY plane
sketch19 = body.newObject("Sketcher::SketchObject", "Sketch018")
sketch19.AttachmentSupport = (doc.getObject("XY_Plane"), [""])
sketch19.MapMode = "FlatFace"
add_polygon(sketch19, [(65, 8), (65, 46), (97, 8)])  # lines 0-2
sketch19.addConstraint(Sketcher.Constraint("Vertical", 0))
sketch19.addConstraint(Sketcher.Constraint("Horizontal", 2))
sketch19.addConstraint(Sketcher.Constraint("DistanceY", 0, 1, 0, 2, Q("1.5 in")))
sketch19.addConstraint(Sketcher.Constraint("DistanceX", 2, 2, 2, 1, Q("1.25 in")))
sketch19.addConstraint(Sketcher.Constraint("DistanceY", -1, 1, 0, 2, Q("1.8 in")))
sketch19.addConstraint(Sketcher.Constraint("DistanceX", -1, 1, 1, 2, Q("3.8 in")))
pad8 = body.newObject("PartDesign::Pad", "Pad007")
pad8.Profile = sketch19
pad8.Length = Q("0.35 in")
doc.recompute()

fillet4 = body.newObject("PartDesign::Fillet", "Fillet003")
fillet4.Base = (pad8, edges_at(pad8, [(96.52, 7.62, 4.445), (64.77, 45.72, 4.445)]))
fillet4.Radius = Q("0.3 in")

# Sketch on XZ plane
sketch20 = body.newObject("Sketcher::SketchObject", "Sketch019")
sketch20.AttachmentSupport = (doc.getObject("XZ_Plane"), [""])
sketch20.MapMode = "FlatFace"
sketch20.AttachmentOffset = App.Placement(V(0, 0, 0.3 * 25.4), App.Rotation())
add_polygon(sketch20, [(50, 102), (50, 89), (56, 89), (56, 102)])  # lines 0-3
sketch20.addConstraint(Sketcher.Constraint("Vertical", 0))
sketch20.addConstraint(Sketcher.Constraint("Horizontal", 1))
sketch20.addConstraint(Sketcher.Constraint("Vertical", 2))
sketch20.addConstraint(Sketcher.Constraint("Horizontal", 3))
sketch20.addConstraint(Sketcher.Constraint("DistanceY", 0, 2, 0, 1, Q("0.5 in")))
sketch20.addConstraint(Sketcher.Constraint("DistanceY", -1, 1, 2, 2, Q("4 in")))
sketch20.addConstraint(Sketcher.Constraint("DistanceX", 1, 1, 1, 2, Q("0.25 in")))
sketch20.addConstraint(Sketcher.Constraint("DistanceX", -1, 1, 0, 2, 49.506215))
pocket12 = body.newObject("PartDesign::Pocket", "Pocket011")
pocket12.Profile = sketch20
pocket12.Length = Q("1 in")

# Sketch on YZ plane
sketch21 = body.newObject("Sketcher::SketchObject", "Sketch020")
sketch21.AttachmentSupport = (doc.getObject("YZ_Plane"), [""])
sketch21.MapMode = "FlatFace"
sketch21.AttachmentOffset = App.Placement(V(0, 0, 2.55 * 25.4), App.Rotation())
add_polygon(sketch21, [(39, 102), (33, 102), (33, 89), (39, 89)])  # lines 0-3
sketch21.addConstraint(Sketcher.Constraint("Horizontal", 0))
sketch21.addConstraint(Sketcher.Constraint("Vertical", 1))
sketch21.addConstraint(Sketcher.Constraint("Horizontal", 2))
sketch21.addConstraint(Sketcher.Constraint("Vertical", 3))
sketch21.addConstraint(Sketcher.Constraint("DistanceY", 1, 2, 1, 1, Q("0.5 in")))
sketch21.addConstraint(Sketcher.Constraint("DistanceY", -1, 1, 0, 2, Q("4 in")))
sketch21.addConstraint(Sketcher.Constraint("DistanceX", 0, 2, 0, 1, Q("0.25 in")))
sketch21.addConstraint(Sketcher.Constraint("DistanceX", -1, 1, 0, 2, Q("1.3 in")))
pocket13 = body.newObject("PartDesign::Pocket", "Pocket012")
pocket13.Profile = sketch21
pocket13.Length = Q("1 in")

doc.recompute()
